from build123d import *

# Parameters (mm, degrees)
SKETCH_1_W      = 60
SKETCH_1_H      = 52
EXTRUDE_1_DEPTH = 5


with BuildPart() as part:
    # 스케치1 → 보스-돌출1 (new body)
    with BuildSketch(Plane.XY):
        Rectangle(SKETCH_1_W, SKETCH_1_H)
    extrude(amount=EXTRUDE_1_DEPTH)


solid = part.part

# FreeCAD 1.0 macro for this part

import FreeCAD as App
import Part
import Sketcher

doc = App.newDocument("Part")
params = doc.addObject("Spreadsheet::Sheet", "Params")
for row, (alias, value) in enumerate([
    ("sketch1_width", "60 mm"),
    ("sketch1_height", "52 mm"),
    ("pad1_length", "5 mm"),
], start=1):
    params.set(f"A{row}", alias)
    params.set(f"B{row}", "=" + value)
    params.setAlias(f"B{row}", alias)

body = doc.addObject("PartDesign::Body", "Body")

# Sketch on XY plane
sketch1 = body.newObject("Sketcher::SketchObject", "Sketch")
sketch1.AttachmentSupport = (doc.getObject("XY_Plane"), [""])
sketch1.MapMode = "FlatFace"
sketch1.addGeometry(Part.LineSegment(App.Vector(-30, 26, 0), App.Vector(-30, -26, 0)), False)
sketch1.addGeometry(Part.LineSegment(App.Vector(-30, -26, 0), App.Vector(30, -26, 0)), False)
sketch1.addGeometry(Part.LineSegment(App.Vector(30, -26, 0), App.Vector(30, 26, 0)), False)
sketch1.addGeometry(Part.LineSegment(App.Vector(30, 26, 0), App.Vector(-30, 26, 0)), False)
sketch1.addConstraint(Sketcher.Constraint("Coincident", 0, 2, 1, 1))
sketch1.addConstraint(Sketcher.Constraint("Coincident", 1, 2, 2, 1))
sketch1.addConstraint(Sketcher.Constraint("Coincident", 2, 2, 3, 1))
sketch1.addConstraint(Sketcher.Constraint("Coincident", 3, 2, 0, 1))
sketch1.addConstraint(Sketcher.Constraint("Vertical", 0))
sketch1.addConstraint(Sketcher.Constraint("Horizontal", 1))
sketch1.addConstraint(Sketcher.Constraint("Vertical", 2))
sketch1.addConstraint(Sketcher.Constraint("Horizontal", 3))
sketch1.addConstraint(Sketcher.Constraint("Symmetric", 0, 2, 2, 2, -1, 1))
sketch1.addConstraint(Sketcher.Constraint("DistanceX", 1, 1, 1, 2, 60.0))
sketch1.addConstraint(Sketcher.Constraint("DistanceY", 0, 2, 0, 1, 52.0))
sketch1.setExpression("Constraints[9]", "Params.sketch1_width")
sketch1.setExpression("Constraints[10]", "Params.sketch1_height")
pad1 = body.newObject("PartDesign::Pad", "Pad")
pad1.Profile = sketch1
pad1.setExpression("Length", "Params.pad1_length")

doc.recompute()
